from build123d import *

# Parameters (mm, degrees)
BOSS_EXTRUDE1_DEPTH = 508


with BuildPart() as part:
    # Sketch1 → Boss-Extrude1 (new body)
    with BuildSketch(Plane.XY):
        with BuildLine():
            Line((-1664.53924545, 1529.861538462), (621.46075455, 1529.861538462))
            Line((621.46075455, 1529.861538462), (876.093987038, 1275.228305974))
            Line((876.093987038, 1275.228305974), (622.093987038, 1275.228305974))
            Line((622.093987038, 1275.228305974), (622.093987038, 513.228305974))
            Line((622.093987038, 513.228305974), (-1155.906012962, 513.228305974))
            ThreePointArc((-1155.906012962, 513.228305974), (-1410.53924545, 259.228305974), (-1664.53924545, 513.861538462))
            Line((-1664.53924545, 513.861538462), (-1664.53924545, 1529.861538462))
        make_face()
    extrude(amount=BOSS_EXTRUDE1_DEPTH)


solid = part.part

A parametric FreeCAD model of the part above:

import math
import FreeCAD as App
import Part
import Sketcher
from FreeCAD import Vector
Q = App.Units.Quantity

doc = App.newDocument("Part")
params = doc.addObject("Spreadsheet::Sheet", "Params")
for row, (alias, value) in enumerate([
    ("sketch1_width", "90 in"),
    ("sketch1_width2", "70 in"),
    ("sketch1_width3", "10 in"),
    ("sketch1_height", "40 in"),
    ("sketch1_height2", "30 in"),
    ("pad1_length", "20 in"),
], start=1):
    params.set(f"A{row}", alias)
    params.set(f"B{row}", "=" + value)
    params.setAlias(f"B{row}", alias)

body = doc.addObject("PartDesign::Body", "Body")

sketch1 = body.newObject("Sketcher::SketchObject", "Sketch")
sketch1.AttachmentSupport = (doc.getObject("XY_Plane"), [""])
sketch1.MapMode = "FlatFace"
sketch1.addGeometry([
    Part.LineSegment(Vector(621, 1530, 0), Vector(-1665, 1530, 0)),
    Part.LineSegment(Vector(-1665, 1530, 0), Vector(-1665, 514, 0)),
    Part.ArcOfCircle(Part.Circle(Vector(-1410, 514, 0), Vector(0, 0, 1), 254), math.radians(180), math.radians(360)),
    Part.LineSegment(Vector(-1156, 513, 0), Vector(622, 513, 0)),
    Part.LineSegment(Vector(622, 513, 0), Vector(622, 1275, 0)),
    Part.LineSegment(Vector(622, 1275, 0), Vector(876, 1275, 0)),
    Part.LineSegment(Vector(876, 1275, 0), Vector(621, 1530, 0)),
], False)
sketch1.addConstraint([
    Sketcher.Constraint("Coincident", 0, 2, 1, 1),
    Sketcher.Constraint("Coincident", 1, 2, 2, 1),
    Sketcher.Constraint("Coincident", 2, 2, 3, 1),
    Sketcher.Constraint("Coincident", 3, 2, 4, 1),
    Sketcher.Constraint("Coincident", 4, 2, 5, 1),
    Sketcher.Constraint("Coincident", 5, 2, 6, 1),
    Sketcher.Constraint("Coincident", 6, 2, 0, 1),
    Sketcher.Constraint("Horizontal", 0),
    Sketcher.Constraint("Vertical", 1),
    Sketcher.Constraint("Horizontal", 3),
    Sketcher.Constraint("Vertical", 4),
    Sketcher.Constraint("Horizontal", 5),
    Sketcher.Constraint("DistanceX", 0, 2, 0, 1, Q("90 in")),
    Sketcher.Constraint("DistanceX", 3, 1, 3, 2, Q("70 in")),
    Sketcher.Constraint("DistanceX", 5, 1, 5, 2, Q("10 in")),
    Sketcher.Constraint("DistanceY", 1, 2, 1, 1, Q("40 in")),
    Sketcher.Constraint("DistanceY", 4, 1, 4, 2, Q("30 in")),
    Sketcher.Constraint("Angle", 6, Q("135 deg")),
    Sketcher.Constraint("Radius", 2, Q("254.316813 mm")),
    Sketcher.Constraint("DistanceX", 2, 3, -1, 1, Q("1410.222629 mm")),
    Sketcher.Constraint("DistanceY", -1, 1, 0, 2, Q("1529.861538 mm")),
    Sketcher.Constraint("DistanceY", -1, 1, 2, 3, Q("513.544922 mm")),
])
sketch1.setExpression("Constraints[12]", "Params.sketch1_width")
sketch1.setExpression("Constraints[13]", "Params.sketch1_width2")
sketch1.setExpression("Constraints[14]", "Params.sketch1_width3")
sketch1.setExpression("Constraints[15]", "Params.sketch1_height")
sketch1.setExpression("Constraints[16]", "Params.sketch1_height2")
pad1 = body.newObject("PartDesign::Pad", "Pad")
pad1.Profile = sketch1
pad1.setExpression("Length", "Params.pad1_length")

doc.recompute()
